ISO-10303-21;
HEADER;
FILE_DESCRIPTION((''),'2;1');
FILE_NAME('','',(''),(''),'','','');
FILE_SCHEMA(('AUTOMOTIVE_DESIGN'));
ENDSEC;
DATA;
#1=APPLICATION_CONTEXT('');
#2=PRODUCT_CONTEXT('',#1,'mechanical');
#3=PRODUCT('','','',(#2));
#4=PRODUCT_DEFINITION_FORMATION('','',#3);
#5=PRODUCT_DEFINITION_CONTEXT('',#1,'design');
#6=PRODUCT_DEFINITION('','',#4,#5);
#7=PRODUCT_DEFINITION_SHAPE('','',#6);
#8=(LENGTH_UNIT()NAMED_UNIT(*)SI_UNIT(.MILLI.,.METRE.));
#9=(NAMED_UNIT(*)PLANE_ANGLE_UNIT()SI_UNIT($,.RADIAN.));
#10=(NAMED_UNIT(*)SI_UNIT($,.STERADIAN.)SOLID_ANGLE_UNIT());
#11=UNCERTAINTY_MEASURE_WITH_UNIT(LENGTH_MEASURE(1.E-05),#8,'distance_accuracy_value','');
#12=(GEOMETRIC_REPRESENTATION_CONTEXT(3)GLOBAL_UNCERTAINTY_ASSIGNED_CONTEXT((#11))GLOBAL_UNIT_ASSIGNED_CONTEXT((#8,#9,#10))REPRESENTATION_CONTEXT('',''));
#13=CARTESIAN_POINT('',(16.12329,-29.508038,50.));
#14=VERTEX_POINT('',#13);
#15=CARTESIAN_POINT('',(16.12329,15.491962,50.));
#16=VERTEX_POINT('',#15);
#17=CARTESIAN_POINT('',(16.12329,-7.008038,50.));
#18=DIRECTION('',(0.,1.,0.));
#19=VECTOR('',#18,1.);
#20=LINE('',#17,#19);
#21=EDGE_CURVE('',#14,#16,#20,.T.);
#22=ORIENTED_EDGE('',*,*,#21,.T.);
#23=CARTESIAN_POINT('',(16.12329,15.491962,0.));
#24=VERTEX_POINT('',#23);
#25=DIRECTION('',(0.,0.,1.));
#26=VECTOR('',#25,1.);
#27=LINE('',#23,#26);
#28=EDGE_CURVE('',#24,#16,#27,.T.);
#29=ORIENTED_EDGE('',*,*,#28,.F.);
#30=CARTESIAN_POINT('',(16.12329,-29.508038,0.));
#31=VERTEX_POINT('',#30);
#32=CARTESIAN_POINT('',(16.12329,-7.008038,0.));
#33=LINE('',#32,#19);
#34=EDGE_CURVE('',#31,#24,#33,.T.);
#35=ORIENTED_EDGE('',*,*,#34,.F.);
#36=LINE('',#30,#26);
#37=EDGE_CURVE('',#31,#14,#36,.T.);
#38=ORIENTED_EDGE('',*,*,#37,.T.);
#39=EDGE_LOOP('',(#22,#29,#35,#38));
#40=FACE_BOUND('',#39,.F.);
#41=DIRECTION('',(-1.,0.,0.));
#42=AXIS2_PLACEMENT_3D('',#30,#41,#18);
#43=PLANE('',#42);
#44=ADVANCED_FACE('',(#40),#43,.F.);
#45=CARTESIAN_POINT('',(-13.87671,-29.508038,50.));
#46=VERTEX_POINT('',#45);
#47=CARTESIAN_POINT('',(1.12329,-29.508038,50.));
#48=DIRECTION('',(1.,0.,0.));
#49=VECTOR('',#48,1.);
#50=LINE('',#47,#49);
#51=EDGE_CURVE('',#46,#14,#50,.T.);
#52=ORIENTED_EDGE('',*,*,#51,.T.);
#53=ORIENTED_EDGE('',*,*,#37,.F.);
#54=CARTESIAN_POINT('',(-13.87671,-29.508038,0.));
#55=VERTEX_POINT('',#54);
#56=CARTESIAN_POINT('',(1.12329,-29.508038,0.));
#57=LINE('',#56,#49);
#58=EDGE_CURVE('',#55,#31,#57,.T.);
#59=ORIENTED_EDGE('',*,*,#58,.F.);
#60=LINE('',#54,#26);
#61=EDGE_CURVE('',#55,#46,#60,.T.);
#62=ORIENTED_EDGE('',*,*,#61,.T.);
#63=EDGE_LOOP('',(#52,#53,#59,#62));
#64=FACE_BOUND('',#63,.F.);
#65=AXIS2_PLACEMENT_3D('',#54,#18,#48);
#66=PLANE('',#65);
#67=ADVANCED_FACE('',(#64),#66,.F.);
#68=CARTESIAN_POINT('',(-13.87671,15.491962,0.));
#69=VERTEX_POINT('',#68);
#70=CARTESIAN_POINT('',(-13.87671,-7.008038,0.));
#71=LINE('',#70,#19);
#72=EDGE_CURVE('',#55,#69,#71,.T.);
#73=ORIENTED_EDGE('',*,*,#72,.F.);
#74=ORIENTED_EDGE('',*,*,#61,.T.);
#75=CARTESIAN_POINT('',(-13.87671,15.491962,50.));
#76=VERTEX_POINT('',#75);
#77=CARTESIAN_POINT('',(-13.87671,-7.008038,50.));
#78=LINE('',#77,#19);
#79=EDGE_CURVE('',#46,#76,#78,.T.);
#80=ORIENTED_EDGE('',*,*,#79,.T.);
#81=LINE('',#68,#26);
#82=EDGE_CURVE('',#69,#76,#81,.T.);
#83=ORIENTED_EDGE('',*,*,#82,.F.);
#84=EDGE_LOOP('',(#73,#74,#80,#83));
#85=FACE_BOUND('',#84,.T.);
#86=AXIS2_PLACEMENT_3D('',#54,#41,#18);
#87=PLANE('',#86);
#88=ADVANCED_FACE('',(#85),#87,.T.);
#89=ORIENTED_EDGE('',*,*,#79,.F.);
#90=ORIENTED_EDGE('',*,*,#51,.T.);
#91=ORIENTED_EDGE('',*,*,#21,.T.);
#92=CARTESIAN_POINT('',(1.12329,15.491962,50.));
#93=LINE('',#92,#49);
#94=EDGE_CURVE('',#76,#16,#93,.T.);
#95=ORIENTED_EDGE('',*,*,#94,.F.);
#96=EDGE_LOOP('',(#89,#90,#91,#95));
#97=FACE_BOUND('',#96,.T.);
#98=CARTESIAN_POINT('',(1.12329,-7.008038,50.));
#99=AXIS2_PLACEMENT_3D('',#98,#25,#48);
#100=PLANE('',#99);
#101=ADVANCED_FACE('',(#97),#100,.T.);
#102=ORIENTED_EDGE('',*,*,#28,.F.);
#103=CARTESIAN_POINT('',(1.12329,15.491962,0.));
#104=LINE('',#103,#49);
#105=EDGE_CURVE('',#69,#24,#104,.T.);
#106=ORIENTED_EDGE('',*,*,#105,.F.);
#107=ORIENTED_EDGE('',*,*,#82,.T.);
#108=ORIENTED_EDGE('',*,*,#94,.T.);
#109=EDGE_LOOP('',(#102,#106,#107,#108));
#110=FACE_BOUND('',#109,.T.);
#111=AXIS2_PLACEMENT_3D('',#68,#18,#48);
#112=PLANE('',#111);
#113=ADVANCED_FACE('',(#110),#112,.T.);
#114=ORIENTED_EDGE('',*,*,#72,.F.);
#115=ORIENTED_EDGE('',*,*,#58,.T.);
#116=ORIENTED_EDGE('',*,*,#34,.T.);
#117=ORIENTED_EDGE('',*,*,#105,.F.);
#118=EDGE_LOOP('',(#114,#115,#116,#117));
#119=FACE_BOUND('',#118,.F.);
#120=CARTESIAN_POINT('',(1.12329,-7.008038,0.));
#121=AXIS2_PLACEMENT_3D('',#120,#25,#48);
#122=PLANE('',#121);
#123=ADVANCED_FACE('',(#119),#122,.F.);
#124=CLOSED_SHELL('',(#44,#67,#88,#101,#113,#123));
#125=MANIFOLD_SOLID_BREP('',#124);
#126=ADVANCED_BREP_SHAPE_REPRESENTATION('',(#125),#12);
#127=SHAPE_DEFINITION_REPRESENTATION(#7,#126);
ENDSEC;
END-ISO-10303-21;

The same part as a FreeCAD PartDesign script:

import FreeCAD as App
import Part
import Sketcher
from FreeCAD import Vector

doc = App.newDocument("Part")
body = doc.addObject("PartDesign::Body", "Body")

# Sketch on XY plane
sketch1 = body.newObject("Sketcher::SketchObject", "Sketch")
sketch1.AttachmentSupport = (doc.getObject("XY_Plane"), [""])
sketch1.MapMode = "FlatFace"
sketch1.addGeometry([
    Part.LineSegment(Vector(-14, 15, 0), Vector(-14, -30, 0)),
    Part.LineSegment(Vector(-14, -30, 0), Vector(16, -30, 0)),
    Part.LineSegment(Vector(16, -30, 0), Vector(16, 15, 0)),
    Part.LineSegment(Vector(16, 15, 0), Vector(-14, 15, 0)),
], False)
sketch1.addConstraint([
    Sketcher.Constraint("Coincident", 0, 2, 1, 1),
    Sketcher.Constraint("Coincident", 1, 2, 2, 1),
    Sketcher.Constraint("Coincident", 2, 2, 3, 1),
    Sketcher.Constraint("Coincident", 3, 2, 0, 1),
    Sketcher.Constraint("Vertical", 0),
    Sketcher.Constraint("Horizontal", 1),
    Sketcher.Constraint("Vertical", 2),
    Sketcher.Constraint("Horizontal", 3),
    Sketcher.Constraint("DistanceX", 1, 1, 1, 2, 30.0),
    Sketcher.Constraint("DistanceY", 0, 2, 0, 1, 45.0),
    Sketcher.Constraint("DistanceX", 0, 2, -1, 1, 13.87671),
    Sketcher.Constraint("DistanceY", -1, 1, 2, 2, 15.491962),
])
pad1 = body.newObject("PartDesign::Pad", "Pad")
pad1.Profile = sketch1
pad1.Length = 50

doc.recompute()
